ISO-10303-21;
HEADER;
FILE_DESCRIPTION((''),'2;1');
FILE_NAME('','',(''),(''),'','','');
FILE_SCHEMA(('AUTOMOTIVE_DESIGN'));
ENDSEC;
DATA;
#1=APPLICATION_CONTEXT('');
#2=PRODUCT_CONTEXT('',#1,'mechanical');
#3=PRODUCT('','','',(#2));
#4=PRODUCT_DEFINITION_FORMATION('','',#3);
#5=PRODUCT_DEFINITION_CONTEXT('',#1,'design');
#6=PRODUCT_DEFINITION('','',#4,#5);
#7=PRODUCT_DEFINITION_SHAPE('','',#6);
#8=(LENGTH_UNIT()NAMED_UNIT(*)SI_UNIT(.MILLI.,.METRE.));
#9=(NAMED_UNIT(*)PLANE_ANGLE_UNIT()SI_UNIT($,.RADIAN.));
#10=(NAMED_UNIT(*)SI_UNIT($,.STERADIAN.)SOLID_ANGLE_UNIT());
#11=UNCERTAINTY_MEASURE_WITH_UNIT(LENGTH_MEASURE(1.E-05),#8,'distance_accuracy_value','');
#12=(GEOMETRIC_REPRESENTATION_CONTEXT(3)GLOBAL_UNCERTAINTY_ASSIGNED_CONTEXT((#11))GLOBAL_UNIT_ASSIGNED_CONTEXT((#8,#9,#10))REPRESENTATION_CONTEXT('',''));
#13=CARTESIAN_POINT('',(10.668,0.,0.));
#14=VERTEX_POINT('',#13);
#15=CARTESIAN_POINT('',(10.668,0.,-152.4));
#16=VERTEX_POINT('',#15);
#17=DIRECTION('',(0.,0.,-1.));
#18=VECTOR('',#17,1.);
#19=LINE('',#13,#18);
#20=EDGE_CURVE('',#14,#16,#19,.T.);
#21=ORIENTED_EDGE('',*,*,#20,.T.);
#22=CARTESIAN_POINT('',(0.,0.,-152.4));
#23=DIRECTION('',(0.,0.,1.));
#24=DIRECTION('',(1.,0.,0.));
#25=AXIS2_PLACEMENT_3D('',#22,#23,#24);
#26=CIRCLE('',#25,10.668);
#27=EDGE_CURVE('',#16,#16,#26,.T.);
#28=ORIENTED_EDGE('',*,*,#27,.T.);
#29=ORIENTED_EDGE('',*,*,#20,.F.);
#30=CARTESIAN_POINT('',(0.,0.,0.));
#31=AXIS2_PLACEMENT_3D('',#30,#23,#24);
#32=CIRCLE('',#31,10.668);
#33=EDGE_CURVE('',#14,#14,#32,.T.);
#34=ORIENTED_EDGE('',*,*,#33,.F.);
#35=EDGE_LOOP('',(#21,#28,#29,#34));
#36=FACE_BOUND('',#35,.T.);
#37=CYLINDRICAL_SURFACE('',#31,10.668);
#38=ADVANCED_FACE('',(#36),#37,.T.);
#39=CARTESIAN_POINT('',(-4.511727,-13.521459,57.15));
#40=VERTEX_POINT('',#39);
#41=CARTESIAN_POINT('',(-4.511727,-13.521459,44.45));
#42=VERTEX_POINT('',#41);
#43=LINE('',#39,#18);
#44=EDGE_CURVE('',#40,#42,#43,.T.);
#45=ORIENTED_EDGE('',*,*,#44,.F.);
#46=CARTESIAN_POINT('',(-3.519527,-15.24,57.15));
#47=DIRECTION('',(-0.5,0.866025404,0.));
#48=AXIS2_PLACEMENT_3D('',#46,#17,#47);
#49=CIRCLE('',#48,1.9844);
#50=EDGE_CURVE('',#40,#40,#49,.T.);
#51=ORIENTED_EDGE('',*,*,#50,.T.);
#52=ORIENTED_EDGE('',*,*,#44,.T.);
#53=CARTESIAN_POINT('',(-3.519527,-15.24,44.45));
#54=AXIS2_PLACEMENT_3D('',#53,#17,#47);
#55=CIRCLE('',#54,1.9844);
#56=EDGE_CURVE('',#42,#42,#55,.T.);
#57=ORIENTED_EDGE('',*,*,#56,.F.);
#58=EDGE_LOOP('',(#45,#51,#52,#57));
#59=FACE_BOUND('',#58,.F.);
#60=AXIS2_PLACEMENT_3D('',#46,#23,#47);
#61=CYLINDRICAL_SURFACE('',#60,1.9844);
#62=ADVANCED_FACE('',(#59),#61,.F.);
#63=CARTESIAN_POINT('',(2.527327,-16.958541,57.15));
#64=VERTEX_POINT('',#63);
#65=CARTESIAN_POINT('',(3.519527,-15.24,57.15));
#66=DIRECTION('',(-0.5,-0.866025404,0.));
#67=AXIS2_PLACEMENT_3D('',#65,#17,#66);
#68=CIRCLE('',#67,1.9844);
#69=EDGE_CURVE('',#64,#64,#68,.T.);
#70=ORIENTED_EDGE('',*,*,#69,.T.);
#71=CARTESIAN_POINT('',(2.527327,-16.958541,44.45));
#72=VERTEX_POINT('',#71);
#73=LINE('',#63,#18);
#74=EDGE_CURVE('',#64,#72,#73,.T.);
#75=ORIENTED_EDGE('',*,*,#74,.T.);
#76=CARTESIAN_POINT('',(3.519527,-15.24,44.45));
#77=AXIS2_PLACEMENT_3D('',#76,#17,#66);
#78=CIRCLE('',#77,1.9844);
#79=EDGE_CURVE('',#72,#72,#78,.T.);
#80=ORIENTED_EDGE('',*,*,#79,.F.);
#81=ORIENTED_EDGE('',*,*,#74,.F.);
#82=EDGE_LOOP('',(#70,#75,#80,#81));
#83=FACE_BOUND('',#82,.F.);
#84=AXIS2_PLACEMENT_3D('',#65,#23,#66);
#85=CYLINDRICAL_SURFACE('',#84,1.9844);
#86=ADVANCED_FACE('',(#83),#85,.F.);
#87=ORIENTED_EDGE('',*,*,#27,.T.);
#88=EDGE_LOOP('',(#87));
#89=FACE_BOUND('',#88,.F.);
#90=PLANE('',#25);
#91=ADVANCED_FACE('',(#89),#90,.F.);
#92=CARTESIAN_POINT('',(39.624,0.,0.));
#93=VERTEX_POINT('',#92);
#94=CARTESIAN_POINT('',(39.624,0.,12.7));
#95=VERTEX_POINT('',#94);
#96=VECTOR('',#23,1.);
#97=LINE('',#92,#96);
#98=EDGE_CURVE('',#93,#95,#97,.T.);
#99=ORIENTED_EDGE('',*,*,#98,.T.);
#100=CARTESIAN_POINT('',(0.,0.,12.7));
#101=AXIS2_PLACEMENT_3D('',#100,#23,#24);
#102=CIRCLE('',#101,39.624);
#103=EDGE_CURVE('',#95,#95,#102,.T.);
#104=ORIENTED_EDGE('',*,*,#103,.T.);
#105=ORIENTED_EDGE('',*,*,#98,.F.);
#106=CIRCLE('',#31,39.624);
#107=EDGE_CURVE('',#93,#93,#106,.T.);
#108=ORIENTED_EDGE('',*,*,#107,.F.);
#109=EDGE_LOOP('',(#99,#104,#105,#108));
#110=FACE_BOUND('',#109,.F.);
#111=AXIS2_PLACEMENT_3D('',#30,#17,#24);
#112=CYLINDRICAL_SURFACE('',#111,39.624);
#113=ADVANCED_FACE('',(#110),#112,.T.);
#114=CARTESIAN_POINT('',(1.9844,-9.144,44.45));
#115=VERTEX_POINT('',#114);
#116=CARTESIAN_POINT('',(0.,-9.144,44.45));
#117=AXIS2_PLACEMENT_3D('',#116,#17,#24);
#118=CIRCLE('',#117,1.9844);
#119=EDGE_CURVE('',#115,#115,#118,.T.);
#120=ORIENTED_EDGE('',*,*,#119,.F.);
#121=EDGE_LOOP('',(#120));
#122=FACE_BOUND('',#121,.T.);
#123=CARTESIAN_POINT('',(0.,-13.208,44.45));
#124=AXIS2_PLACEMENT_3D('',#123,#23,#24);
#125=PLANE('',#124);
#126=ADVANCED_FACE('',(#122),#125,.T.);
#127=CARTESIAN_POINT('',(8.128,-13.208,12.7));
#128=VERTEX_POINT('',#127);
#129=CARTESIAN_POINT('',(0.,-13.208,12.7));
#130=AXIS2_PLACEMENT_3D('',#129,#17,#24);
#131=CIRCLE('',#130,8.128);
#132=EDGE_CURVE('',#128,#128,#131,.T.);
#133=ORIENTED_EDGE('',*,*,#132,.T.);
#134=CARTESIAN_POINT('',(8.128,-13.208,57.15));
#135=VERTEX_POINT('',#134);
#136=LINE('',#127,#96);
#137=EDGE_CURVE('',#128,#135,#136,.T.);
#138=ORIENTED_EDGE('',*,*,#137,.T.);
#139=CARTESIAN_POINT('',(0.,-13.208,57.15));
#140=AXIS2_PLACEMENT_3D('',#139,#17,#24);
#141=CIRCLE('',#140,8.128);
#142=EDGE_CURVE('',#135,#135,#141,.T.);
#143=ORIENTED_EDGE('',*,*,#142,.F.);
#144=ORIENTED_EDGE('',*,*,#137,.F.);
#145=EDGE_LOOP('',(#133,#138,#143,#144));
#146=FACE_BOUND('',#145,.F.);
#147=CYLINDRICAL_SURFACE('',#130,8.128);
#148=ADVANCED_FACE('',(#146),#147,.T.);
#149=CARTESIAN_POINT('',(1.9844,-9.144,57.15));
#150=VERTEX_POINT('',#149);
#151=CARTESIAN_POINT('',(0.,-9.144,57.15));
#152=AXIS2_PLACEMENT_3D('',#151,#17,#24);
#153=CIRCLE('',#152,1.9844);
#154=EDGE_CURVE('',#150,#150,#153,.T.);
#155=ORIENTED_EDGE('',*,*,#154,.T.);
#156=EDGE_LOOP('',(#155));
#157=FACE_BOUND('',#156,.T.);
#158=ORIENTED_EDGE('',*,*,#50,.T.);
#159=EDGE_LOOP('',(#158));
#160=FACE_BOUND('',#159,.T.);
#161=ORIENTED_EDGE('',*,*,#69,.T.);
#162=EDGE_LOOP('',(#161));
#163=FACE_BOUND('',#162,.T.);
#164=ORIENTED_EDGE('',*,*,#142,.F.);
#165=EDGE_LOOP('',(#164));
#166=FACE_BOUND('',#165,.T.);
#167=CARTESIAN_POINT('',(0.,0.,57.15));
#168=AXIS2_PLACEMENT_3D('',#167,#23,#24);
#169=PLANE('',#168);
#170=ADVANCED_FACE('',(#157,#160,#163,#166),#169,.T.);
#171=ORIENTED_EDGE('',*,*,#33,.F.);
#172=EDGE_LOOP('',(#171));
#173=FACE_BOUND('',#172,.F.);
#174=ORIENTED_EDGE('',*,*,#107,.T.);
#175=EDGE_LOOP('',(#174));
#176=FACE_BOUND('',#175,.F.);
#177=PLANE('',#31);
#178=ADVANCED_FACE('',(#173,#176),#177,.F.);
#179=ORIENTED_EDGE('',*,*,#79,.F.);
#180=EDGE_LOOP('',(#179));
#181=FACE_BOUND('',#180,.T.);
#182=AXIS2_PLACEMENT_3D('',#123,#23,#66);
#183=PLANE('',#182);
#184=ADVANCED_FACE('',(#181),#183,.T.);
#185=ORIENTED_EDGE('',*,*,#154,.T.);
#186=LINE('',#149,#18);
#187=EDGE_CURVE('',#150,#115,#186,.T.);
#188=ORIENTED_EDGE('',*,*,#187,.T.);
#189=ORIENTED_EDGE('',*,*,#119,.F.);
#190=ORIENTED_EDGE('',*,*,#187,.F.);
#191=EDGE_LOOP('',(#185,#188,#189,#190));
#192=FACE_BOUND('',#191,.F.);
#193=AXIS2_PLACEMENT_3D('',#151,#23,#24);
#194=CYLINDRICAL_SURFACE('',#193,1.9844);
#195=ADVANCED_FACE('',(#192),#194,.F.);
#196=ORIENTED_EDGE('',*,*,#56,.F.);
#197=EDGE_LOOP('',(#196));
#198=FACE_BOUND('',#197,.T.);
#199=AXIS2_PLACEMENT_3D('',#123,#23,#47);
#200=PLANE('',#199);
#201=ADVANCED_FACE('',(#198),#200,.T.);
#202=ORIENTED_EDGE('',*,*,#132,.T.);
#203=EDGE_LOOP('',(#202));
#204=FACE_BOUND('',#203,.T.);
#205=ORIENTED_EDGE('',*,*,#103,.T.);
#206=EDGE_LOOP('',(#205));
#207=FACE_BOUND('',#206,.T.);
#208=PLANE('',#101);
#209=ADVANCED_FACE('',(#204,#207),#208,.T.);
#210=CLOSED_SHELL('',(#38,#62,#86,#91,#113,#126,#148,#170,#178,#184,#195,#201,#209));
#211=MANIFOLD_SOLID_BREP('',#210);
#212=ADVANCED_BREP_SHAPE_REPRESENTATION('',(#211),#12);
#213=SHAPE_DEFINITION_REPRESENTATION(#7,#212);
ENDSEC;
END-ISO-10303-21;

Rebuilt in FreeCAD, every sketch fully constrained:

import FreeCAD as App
import Part
import Sketcher
Q = App.Units.Quantity

doc = App.newDocument("Part")
body = doc.addObject("PartDesign::Body", "Body")

sketch1 = doc.addObject("Sketcher::SketchObject", "Sketch")
body.addObject(sketch1)
sketch1.AttachmentSupport = (doc.XY_Plane, [""])
sketch1.MapMode = "FlatFace"
sketch1.addGeometry(Part.Circle(App.Vector(0, 0, 0), App.Vector(0, 0, 1), 10.668), False)
sketch1.addConstraint([
    Sketcher.Constraint("Coincident", 0, 3, -1, 1),
    Sketcher.Constraint("Diameter", 0, Q("0.84 in")),
])
pad1 = doc.addObject("PartDesign::Pad", "Pad")
body.addObject(pad1)
pad1.Profile = sketch1
pad1.Length = Q("6 in")
pad1.Reversed = True

sketch2 = doc.addObject("Sketcher::SketchObject", "Sketch001")
body.addObject(sketch2)
sketch2.AttachmentSupport = (doc.XY_Plane, [""])
sketch2.MapMode = "FlatFace"
sketch2.addGeometry(Part.Circle(App.Vector(0, 0, 0), App.Vector(0, 0, 1), 39.624), False)
sketch2.addConstraint([
    Sketcher.Constraint("Coincident", 0, 3, -1, 1),
    Sketcher.Constraint("Diameter", 0, Q("3.12 in")),
])
pad2 = doc.addObject("PartDesign::Pad", "Pad001")
body.addObject(pad2)
pad2.Profile = sketch2
pad2.Length = Q("0.5 in")

sketch3 = doc.addObject("Sketcher::SketchObject", "Sketch002")
body.addObject(sketch3)
sketch3.AttachmentSupport = (doc.XY_Plane, [""])
sketch3.MapMode = "FlatFace"
sketch3.AttachmentOffset = App.Placement(App.Vector(0, 0, 0.5 * 25.4), App.Rotation())
sketch3.addGeometry(Part.Circle(App.Vector(0, -13.208, 0), App.Vector(0, 0, 1), 8.128), False)
sketch3.addConstraint([
    Sketcher.Constraint("PointOnObject", 0, 3, -2),
    Sketcher.Constraint("Diameter", 0, Q("0.64 in")),
    Sketcher.Constraint("DistanceY", 0, 3, -1, 1, Q("0.52 in")),
])
pad3 = doc.addObject("PartDesign::Pad", "Pad002")
body.addObject(pad3)
pad3.Profile = sketch3
pad3.Length = Q("1.75 in")

sketch4 = doc.addObject("Sketcher::SketchObject", "Sketch003")
body.addObject(sketch4)
sketch4.AttachmentSupport = (doc.XY_Plane, [""])
sketch4.MapMode = "FlatFace"
sketch4.AttachmentOffset = App.Placement(App.Vector(0, 0, 2.25 * 25.4), App.Rotation())
sketch4.addGeometry(Part.Circle(App.Vector(0, -9.144, 0), App.Vector(0, 0, 1), 1.9844), False)
sketch4.addConstraint([
    Sketcher.Constraint("PointOnObject", 0, 3, -2),
    Sketcher.Constraint("Diameter", 0, Q("0.156252 in")),
    Sketcher.Constraint("DistanceY", 0, 3, -1, 1, Q("0.36 in")),
])
pocket1 = doc.addObject("PartDesign::Pocket", "Pocket")
body.addObject(pocket1)
pocket1.Profile = sketch4
pocket1.Length = Q("0.5 in")
doc.recompute()

datumline = doc.addObject("PartDesign::Line", "DatumLine")
body.addObject(datumline)
datumline.Placement = App.Placement(App.Vector(0, -13.208, 0), App.Rotation(App.Vector(0, 0, 1), App.Vector(0, 0, 1)))
polarpattern = doc.addObject("PartDesign::PolarPattern", "PolarPattern")
body.addObject(polarpattern)
polarpattern.Originals = [pocket1]
polarpattern.Axis = (datumline, [""])
polarpattern.Angle = 360
polarpattern.Occurrences = 3
body.Tip = polarpattern

doc.recompute()
